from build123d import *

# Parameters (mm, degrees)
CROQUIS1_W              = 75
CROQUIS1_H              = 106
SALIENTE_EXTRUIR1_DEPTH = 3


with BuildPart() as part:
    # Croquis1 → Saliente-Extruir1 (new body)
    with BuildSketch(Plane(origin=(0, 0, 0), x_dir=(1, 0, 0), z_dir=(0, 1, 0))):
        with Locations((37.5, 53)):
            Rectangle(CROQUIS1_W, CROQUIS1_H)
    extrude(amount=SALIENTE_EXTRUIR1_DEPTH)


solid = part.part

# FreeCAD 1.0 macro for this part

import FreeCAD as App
import Part
import Sketcher

V = App.Vector


def add_polygon(sketch, points):
    """Adds a closed chain of lines whose ends are joined by coincident constraints."""
    first, n = sketch.GeometryCount, len(points)
    for a, b in zip(points, points[1:] + points[:1]):
        sketch.addGeometry(Part.LineSegment(App.Vector(*a, 0), App.Vector(*b, 0)), False)
    for i in range(n):
        sketch.addConstraint(Sketcher.Constraint("Coincident", first + i, 2, first + (i + 1) % n, 1))

doc = App.newDocument("Part")
body = doc.addObject("PartDesign::Body", "Body")

sketch1 = body.newObject("Sketcher::SketchObject", "Sketch")
sketch1.AttachmentSupport = (doc.getObject("XZ_Plane"), [""])
sketch1.MapMode = "FlatFace"
add_polygon(sketch1, [(0, -106), (0, 0), (75, 0), (75, -106)])
sketch1.addConstraint([
    Sketcher.Constraint("Vertical", 0),
    Sketcher.Constraint("Horizontal", 1),
    Sketcher.Constraint("Vertical", 2),
    Sketcher.Constraint("Horizontal", 3),
    Sketcher.Constraint("Coincident", 0, 2, -1, 1),
    Sketcher.Constraint("DistanceX", 1, 1, 1, 2, 75.0),
    Sketcher.Constraint("DistanceY", 0, 1, 0, 2, 106.0),
])
pad1 = body.newObject("PartDesign::Pad", "Pad")
pad1.Profile = sketch1
pad1.Length = 3
pad1.Reversed = True

doc.recompute()
